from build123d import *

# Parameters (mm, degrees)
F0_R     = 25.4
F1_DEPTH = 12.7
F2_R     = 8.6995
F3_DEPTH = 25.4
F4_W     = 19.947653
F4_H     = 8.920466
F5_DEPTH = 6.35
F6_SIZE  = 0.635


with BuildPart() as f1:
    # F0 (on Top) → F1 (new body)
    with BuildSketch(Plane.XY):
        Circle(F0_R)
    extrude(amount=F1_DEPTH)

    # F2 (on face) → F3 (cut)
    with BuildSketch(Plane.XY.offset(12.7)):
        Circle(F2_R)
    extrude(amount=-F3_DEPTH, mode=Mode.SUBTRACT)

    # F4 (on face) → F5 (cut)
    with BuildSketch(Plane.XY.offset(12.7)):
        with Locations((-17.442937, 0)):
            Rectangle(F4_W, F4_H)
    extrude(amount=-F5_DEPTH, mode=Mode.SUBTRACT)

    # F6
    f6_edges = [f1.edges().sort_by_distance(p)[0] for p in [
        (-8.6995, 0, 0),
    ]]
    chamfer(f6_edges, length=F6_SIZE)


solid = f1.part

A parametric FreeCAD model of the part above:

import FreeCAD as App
import Part
import Sketcher
from FreeCAD import Vector
Q = App.Units.Quantity


def edges_at(feature, points):
    """Names of the edges that pass closest to the given points."""
    edges = feature.Shape.Edges
    near = lambda p: min(range(len(edges)), key=lambda i: edges[i].distToShape(Part.Vertex(*p))[0])
    return sorted({f"Edge{near(p) + 1}" for p in points})


def add_polygon(sketch, points):
    """Adds a closed chain of lines whose ends are joined by coincident constraints."""
    first, n = sketch.GeometryCount, len(points)
    for a, b in zip(points, points[1:] + points[:1]):
        sketch.addGeometry(Part.LineSegment(App.Vector(*a, 0), App.Vector(*b, 0)), False)
    for i in range(n):
        sketch.addConstraint(Sketcher.Constraint("Coincident", first + i, 2, first + (i + 1) % n, 1))

doc = App.newDocument("Part")
params = doc.addObject("Spreadsheet::Sheet", "Params")
for row, (alias, value) in enumerate([
    ("sketch1_diameter", "2 in"),
    ("pad1_length", "0.5 in"),
    ("sketch2_diameter", "0.685 in"),
    ("pocket1_length", "1 in"),
    ("pocket2_length", "0.25 in"),
    ("chamfer_size", "0.025 in"),
], start=1):
    params.set(f"A{row}", alias)
    params.set(f"B{row}", "=" + value)
    params.setAlias(f"B{row}", alias)

body = doc.addObject("PartDesign::Body", "Body")

sketch1 = body.newObject("Sketcher::SketchObject", "Sketch")
sketch1.AttachmentSupport = (doc.getObject("XY_Plane"), [""])
sketch1.MapMode = "FlatFace"
sketch1.addGeometry(Part.Circle(Vector(0, 0, 0), Vector(0, 0, 1), 25.4), False)
sketch1.addConstraint(Sketcher.Constraint("Coincident", 0, 3, -1, 1))
sketch1.addConstraint(Sketcher.Constraint("Diameter", 0, Q("2 in")))
sketch1.setExpression("Constraints[1]", "Params.sketch1_diameter")
pad1 = body.newObject("PartDesign::Pad", "Pad")
pad1.Profile = sketch1
pad1.setExpression("Length", "Params.pad1_length")

sketch2 = body.newObject("Sketcher::SketchObject", "Sketch001")
sketch2.AttachmentSupport = (doc.getObject("XY_Plane"), [""])
sketch2.MapMode = "FlatFace"
sketch2.AttachmentOffset = App.Placement(Vector(0, 0, 0.5 * 25.4), App.Rotation())
sketch2.addGeometry(Part.Circle(Vector(0, 0, 0), Vector(0, 0, 1), 8.6995), False)
sketch2.addConstraint(Sketcher.Constraint("Coincident", 0, 3, -1, 1))
sketch2.addConstraint(Sketcher.Constraint("Diameter", 0, Q("0.685 in")))
sketch2.setExpression("Constraints[1]", "Params.sketch2_diameter")
pocket1 = body.newObject("PartDesign::Pocket", "Pocket")
pocket1.Profile = sketch2
pocket1.setExpression("Length", "Params.pocket1_length")

sketch3 = body.newObject("Sketcher::SketchObject", "Sketch002")
sketch3.AttachmentSupport = (doc.getObject("XY_Plane"), [""])
sketch3.MapMode = "FlatFace"
sketch3.AttachmentOffset = App.Placement(Vector(0, 0, 0.5 * 25.4), App.Rotation())
add_polygon(sketch3, [(-27.416763, 4.460233), (-27.416763, -4.460233), (-7.469111, -4.460233), (-7.469111, 4.460233)])
sketch3.addConstraint(Sketcher.Constraint("Vertical", 0))
sketch3.addConstraint(Sketcher.Constraint("Horizontal", 1))
sketch3.addConstraint(Sketcher.Constraint("Vertical", 2))
sketch3.addConstraint(Sketcher.Constraint("Horizontal", 3))
sketch3.addConstraint(Sketcher.Constraint("DistanceX", 0, 2, -1, 1, Q("1.0794001 in")))
sketch3.addConstraint(Sketcher.Constraint("DistanceX", 1, 1, 1, 2, 19.947653))
sketch3.addConstraint(Sketcher.Constraint("DistanceY", 0, 2, 0, 1, 8.920466))
sketch3.addConstraint(Sketcher.Constraint("DistanceY", 0, 2, -1, 1, 4.460233))
pocket2 = body.newObject("PartDesign::Pocket", "Pocket001")
pocket2.Profile = sketch3
pocket2.setExpression("Length", "Params.pocket2_length")
doc.recompute()

chamfer = body.newObject("PartDesign::Chamfer", "Chamfer")
chamfer.Base = (pocket2, edges_at(pocket2, [(-8.7, 0, 0)]))
chamfer.setExpression("Size", "Params.chamfer_size")

doc.recompute()
